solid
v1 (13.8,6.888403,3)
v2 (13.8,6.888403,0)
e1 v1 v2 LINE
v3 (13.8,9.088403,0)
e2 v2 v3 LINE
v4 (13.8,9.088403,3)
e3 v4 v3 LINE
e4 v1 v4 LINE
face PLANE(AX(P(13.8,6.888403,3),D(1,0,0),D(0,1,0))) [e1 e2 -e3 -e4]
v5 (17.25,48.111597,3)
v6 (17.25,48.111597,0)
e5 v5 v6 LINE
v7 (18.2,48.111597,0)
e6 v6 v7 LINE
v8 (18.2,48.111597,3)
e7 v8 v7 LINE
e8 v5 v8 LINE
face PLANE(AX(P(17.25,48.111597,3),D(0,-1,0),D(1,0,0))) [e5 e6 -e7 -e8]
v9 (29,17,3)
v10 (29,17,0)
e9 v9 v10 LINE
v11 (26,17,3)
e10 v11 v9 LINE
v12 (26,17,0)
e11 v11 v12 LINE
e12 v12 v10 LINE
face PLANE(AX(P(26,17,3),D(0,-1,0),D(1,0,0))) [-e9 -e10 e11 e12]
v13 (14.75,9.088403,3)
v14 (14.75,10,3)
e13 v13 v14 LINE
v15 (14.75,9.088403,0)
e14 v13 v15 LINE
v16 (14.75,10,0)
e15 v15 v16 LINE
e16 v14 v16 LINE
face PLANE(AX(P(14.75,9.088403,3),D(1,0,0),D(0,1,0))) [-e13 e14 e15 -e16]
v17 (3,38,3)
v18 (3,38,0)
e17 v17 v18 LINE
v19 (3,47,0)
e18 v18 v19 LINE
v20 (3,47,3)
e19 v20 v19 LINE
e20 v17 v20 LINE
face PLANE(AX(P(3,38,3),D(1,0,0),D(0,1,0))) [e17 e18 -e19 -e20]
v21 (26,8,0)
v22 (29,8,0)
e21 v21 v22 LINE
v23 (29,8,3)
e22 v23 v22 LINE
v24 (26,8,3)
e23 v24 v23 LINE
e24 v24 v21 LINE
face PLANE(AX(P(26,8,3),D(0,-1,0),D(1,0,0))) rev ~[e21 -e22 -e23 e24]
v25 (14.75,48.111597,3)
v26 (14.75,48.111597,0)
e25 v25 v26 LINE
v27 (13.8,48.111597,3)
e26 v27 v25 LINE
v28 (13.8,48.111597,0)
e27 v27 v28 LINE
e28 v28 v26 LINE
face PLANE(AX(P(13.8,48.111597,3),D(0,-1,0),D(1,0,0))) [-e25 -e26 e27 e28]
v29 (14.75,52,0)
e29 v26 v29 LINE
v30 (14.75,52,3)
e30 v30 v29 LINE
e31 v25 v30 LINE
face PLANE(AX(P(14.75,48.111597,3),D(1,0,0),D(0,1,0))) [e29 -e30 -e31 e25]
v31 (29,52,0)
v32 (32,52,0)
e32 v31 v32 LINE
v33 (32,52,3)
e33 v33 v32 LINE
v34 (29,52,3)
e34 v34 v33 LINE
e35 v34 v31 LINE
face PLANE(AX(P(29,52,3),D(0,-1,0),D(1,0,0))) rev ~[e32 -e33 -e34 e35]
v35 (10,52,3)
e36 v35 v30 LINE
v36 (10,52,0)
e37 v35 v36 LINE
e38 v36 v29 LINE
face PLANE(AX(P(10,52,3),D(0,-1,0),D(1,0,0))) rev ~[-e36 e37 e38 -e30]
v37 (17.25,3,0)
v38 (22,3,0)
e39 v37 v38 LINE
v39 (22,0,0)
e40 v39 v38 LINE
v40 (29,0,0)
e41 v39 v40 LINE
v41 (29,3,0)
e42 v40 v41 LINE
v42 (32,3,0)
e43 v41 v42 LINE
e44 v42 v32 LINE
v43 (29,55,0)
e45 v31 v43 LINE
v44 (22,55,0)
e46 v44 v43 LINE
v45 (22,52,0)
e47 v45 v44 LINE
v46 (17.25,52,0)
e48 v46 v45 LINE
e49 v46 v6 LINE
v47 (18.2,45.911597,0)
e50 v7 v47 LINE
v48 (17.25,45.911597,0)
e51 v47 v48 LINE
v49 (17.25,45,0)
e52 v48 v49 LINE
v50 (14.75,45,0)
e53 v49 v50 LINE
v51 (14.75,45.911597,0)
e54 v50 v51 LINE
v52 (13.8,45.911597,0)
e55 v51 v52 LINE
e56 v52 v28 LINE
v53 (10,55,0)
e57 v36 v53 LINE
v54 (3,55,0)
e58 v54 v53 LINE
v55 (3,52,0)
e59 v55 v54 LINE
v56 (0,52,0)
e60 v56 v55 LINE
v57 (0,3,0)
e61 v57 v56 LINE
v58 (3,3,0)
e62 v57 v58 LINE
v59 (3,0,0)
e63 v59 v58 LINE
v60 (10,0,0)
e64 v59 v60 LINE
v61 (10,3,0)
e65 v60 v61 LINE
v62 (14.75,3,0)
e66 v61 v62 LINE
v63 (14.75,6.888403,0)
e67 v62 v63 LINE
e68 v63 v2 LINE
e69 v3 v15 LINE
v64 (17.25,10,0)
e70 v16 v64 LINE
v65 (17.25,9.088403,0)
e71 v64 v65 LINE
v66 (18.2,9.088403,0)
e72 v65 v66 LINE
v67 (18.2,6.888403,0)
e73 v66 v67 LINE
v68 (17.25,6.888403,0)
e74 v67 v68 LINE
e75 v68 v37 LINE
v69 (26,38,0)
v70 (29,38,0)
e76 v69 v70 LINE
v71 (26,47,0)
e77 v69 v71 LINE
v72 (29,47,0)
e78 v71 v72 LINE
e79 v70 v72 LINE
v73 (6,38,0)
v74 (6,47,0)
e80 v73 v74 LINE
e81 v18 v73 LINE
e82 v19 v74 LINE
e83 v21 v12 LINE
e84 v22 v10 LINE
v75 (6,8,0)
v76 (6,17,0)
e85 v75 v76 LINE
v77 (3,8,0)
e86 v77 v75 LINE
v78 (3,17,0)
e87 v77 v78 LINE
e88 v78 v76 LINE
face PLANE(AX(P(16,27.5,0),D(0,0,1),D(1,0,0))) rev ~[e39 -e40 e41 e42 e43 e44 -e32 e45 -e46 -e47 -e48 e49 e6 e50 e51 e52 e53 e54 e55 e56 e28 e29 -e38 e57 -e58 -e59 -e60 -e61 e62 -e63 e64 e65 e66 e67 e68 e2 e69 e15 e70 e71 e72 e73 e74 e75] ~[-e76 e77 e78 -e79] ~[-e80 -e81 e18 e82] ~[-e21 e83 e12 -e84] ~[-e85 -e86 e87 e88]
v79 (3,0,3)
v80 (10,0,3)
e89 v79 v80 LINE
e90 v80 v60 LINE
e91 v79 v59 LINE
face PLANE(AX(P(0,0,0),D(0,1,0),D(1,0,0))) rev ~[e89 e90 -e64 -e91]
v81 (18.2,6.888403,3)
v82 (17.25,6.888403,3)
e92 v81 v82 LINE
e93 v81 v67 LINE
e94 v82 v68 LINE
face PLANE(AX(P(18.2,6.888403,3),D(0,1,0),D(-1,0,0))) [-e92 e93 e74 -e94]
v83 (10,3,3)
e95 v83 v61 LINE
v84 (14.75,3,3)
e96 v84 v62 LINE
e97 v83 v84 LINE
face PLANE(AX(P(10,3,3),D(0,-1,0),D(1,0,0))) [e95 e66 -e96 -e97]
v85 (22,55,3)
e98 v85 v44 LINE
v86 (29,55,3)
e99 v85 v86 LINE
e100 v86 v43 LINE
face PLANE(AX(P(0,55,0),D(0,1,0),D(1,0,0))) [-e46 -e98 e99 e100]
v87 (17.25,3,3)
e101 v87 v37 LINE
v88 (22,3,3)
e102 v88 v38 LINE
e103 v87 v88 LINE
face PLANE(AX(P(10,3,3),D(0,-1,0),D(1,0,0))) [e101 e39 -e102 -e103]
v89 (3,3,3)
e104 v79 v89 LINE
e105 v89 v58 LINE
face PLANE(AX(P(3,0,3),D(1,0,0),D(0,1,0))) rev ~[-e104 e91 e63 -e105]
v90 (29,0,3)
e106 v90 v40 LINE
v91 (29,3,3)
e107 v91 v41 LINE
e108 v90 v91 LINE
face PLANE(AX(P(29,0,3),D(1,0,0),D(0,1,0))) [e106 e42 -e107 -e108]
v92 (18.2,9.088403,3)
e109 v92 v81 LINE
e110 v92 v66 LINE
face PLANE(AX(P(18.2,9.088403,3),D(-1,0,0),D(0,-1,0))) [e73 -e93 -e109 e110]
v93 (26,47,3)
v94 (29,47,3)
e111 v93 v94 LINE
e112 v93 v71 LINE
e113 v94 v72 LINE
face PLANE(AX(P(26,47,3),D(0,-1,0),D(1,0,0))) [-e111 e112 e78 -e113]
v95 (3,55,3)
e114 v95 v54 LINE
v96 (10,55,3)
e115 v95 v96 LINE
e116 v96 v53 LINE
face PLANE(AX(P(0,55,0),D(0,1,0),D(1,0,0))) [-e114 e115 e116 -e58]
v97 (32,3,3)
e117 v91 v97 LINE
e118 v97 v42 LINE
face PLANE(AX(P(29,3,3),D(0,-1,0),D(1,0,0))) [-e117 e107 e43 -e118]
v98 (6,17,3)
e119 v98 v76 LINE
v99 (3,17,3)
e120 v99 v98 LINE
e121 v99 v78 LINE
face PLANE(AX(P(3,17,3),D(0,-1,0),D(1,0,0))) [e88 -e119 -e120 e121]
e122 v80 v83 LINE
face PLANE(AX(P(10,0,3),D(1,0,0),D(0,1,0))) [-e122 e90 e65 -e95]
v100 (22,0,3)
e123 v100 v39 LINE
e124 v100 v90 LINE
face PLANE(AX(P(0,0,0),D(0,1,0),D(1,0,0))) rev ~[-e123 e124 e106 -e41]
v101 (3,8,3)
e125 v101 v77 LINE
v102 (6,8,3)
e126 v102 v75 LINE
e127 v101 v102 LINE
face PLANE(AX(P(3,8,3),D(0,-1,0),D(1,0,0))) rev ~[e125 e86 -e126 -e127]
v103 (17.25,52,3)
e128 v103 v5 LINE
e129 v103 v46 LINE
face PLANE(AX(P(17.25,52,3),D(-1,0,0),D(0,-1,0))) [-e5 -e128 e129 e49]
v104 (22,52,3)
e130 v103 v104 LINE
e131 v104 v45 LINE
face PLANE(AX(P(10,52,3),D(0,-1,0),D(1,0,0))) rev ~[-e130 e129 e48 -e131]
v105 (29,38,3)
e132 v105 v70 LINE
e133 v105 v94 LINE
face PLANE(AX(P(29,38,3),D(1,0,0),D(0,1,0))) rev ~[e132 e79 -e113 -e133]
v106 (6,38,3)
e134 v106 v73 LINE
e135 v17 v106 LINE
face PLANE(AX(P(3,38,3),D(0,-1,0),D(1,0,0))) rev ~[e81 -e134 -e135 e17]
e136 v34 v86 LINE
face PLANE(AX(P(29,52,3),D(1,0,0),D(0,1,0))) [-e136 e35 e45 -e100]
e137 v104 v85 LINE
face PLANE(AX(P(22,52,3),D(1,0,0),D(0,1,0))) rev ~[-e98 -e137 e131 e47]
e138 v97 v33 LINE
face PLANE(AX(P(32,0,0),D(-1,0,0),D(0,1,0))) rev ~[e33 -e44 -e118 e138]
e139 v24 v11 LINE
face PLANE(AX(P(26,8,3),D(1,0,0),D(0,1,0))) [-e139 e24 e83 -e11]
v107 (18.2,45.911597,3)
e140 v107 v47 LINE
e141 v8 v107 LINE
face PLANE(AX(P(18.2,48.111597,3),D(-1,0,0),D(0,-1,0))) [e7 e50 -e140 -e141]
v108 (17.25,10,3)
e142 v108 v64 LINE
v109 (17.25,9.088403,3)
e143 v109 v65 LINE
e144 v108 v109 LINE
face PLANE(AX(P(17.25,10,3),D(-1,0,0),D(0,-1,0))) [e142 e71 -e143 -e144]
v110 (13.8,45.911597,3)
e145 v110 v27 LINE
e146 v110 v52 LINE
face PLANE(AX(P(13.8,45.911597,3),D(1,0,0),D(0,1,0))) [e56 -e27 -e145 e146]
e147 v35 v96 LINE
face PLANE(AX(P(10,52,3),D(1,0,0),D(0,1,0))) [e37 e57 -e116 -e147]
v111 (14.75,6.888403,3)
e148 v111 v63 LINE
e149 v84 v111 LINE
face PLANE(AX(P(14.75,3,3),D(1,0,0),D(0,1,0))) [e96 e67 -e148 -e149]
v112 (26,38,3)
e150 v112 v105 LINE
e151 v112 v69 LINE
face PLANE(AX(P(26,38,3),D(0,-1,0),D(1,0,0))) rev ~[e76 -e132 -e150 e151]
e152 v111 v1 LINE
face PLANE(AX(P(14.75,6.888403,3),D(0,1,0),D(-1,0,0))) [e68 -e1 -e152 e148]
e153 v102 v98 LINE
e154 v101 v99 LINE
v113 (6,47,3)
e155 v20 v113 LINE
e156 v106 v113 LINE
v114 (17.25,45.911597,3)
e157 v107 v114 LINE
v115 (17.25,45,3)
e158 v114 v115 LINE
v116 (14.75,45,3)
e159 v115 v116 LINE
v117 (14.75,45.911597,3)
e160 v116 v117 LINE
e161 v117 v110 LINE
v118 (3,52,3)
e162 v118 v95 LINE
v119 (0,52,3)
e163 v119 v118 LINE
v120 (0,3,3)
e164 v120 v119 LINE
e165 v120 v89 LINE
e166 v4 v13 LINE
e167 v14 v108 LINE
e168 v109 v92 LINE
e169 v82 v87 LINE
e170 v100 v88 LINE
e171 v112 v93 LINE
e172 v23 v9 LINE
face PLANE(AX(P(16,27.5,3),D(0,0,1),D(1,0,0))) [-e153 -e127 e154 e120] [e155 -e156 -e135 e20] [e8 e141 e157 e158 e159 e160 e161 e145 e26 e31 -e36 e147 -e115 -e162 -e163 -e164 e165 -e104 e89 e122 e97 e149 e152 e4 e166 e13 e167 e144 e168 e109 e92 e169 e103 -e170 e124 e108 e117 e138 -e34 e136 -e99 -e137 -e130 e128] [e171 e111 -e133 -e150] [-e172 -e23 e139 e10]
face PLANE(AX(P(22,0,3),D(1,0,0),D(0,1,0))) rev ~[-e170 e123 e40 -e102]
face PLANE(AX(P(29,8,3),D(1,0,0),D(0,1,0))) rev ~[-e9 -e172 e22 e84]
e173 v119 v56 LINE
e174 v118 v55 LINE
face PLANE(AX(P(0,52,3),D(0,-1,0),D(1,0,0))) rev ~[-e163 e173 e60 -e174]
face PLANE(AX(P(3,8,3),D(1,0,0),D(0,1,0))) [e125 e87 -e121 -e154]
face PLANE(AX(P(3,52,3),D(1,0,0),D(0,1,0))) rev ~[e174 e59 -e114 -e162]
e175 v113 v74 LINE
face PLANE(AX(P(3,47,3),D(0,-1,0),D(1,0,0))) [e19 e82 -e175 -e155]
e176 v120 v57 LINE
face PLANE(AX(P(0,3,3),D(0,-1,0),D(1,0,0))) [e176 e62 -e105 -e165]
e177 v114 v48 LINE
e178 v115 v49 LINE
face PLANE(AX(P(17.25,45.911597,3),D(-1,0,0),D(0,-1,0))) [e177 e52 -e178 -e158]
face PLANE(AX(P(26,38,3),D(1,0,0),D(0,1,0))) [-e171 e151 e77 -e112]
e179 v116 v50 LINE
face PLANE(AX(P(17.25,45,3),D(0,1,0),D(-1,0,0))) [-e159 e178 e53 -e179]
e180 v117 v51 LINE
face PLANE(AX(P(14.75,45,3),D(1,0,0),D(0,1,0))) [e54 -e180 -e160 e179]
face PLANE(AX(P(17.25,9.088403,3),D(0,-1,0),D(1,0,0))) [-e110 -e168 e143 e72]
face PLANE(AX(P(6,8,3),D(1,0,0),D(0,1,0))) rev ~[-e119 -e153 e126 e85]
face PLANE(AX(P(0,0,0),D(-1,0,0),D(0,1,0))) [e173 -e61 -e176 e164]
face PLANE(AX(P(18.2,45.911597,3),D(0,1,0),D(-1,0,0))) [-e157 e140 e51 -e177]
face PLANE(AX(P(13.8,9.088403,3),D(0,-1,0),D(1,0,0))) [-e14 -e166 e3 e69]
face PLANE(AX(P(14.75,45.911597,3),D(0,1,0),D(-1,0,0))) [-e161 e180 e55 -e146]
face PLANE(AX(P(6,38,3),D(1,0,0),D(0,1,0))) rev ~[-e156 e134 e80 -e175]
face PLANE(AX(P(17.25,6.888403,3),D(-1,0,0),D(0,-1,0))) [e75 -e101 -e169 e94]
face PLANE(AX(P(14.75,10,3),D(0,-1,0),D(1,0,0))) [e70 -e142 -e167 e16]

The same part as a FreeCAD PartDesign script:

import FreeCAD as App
import Part
import Sketcher
from FreeCAD import Vector


def add_polygon(sketch, points):
    """Adds a closed chain of lines whose ends are joined by coincident constraints."""
    first, n = sketch.GeometryCount, len(points)
    for a, b in zip(points, points[1:] + points[:1]):
        sketch.addGeometry(Part.LineSegment(App.Vector(*a, 0), App.Vector(*b, 0)), False)
    for i in range(n):
        sketch.addConstraint(Sketcher.Constraint("Coincident", first + i, 2, first + (i + 1) % n, 1))

doc = App.newDocument("Part")
params = doc.addObject("Spreadsheet::Sheet", "Params")
for row, (alias, value) in enumerate([
    ("sketch1_width", "32 mm"),
    ("sketch1_height", "55 mm"),
    ("pad1_length", "3 mm"),
    ("sketch2_width", "3 mm"),
    ("sketch2_width2", "12 mm"),
    ("sketch3_width", "3 mm"),
    ("sketch3_height", "9 mm"),
    ("sketch4_width", "2.5 mm"),
    ("sketch4_height", "2.2 mm"),
    ("sketch4_width2", "0.95 mm"),
    ("pocket3_length", "10 mm"),
], start=1):
    params.set(f"A{row}", alias)
    params.set(f"B{row}", "=" + value)
    params.setAlias(f"B{row}", alias)

body = doc.addObject("PartDesign::Body", "Body")

sketch1 = doc.addObject("Sketcher::SketchObject", "Sketch")
body.addObject(sketch1)
sketch1.AttachmentSupport = (doc.XY_Plane, [""])
sketch1.MapMode = "FlatFace"
add_polygon(sketch1, [(0, 55), (0, 0), (32, 0), (32, 55)])
sketch1.addConstraint([
    Sketcher.Constraint("Vertical", 0),
    Sketcher.Constraint("Horizontal", 1),
    Sketcher.Constraint("Vertical", 2),
    Sketcher.Constraint("Horizontal", 3),
    Sketcher.Constraint("Coincident", 0, 2, -1, 1),
    Sketcher.Constraint("DistanceX", 1, 1, 1, 2, 32.0),
    Sketcher.Constraint("DistanceY", 0, 2, 0, 1, 55.0),
])
sketch1.setExpression("Constraints[9]", "Params.sketch1_width")
sketch1.setExpression("Constraints[10]", "Params.sketch1_height")
pad1 = doc.addObject("PartDesign::Pad", "Pad")
body.addObject(pad1)
pad1.Profile = sketch1
pad1.setExpression("Length", "Params.pad1_length")

sketch2 = doc.addObject("Sketcher::SketchObject", "Sketch001")
body.addObject(sketch2)
sketch2.AttachmentSupport = (doc.XY_Plane, [""])
sketch2.MapMode = "FlatFace"
sketch2.AttachmentOffset = App.Placement(Vector(0, 0, 3), App.Rotation())
add_polygon(sketch2, [(0, 55), (0, 52), (3, 52), (3, 55)])
add_polygon(sketch2, [(10, 55), (10, 52), (22, 52), (22, 55)])
add_polygon(sketch2, [(29, 55), (29, 52), (32, 52), (32, 55)])
add_polygon(sketch2, [(0, 3), (0, 0), (3, 0), (3, 3)])
add_polygon(sketch2, [(10, 3), (10, 0), (22, 0), (22, 3)])
add_polygon(sketch2, [(29, 3), (29, 0), (32, 0), (32, 3)])
sketch2.addConstraint([
    Sketcher.Constraint("Vertical", 0),
    Sketcher.Constraint("Horizontal", 1),
    Sketcher.Constraint("Vertical", 2),
    Sketcher.Constraint("Horizontal", 3),
    Sketcher.Constraint("Vertical", 4),
    Sketcher.Constraint("Horizontal", 5),
    Sketcher.Constraint("Vertical", 6),
    Sketcher.Constraint("Horizontal", 7),
    Sketcher.Constraint("Vertical", 8),
    Sketcher.Constraint("Horizontal", 9),
    Sketcher.Constraint("Vertical", 10),
    Sketcher.Constraint("Horizontal", 11),
    Sketcher.Constraint("Vertical", 12),
    Sketcher.Constraint("Horizontal", 13),
    Sketcher.Constraint("Vertical", 14),
    Sketcher.Constraint("Horizontal", 15),
    Sketcher.Constraint("Vertical", 16),
    Sketcher.Constraint("Horizontal", 17),
    Sketcher.Constraint("Vertical", 18),
    Sketcher.Constraint("Horizontal", 19),
    Sketcher.Constraint("Vertical", 20),
    Sketcher.Constraint("Horizontal", 21),
    Sketcher.Constraint("Vertical", 22),
    Sketcher.Constraint("Horizontal", 23),
    Sketcher.Constraint("Coincident", 12, 2, -1, 1),
    Sketcher.Constraint("PointOnObject", 0, 2, -2),
    Sketcher.Constraint("PointOnObject", 16, 2, -1),
    Sketcher.Constraint("PointOnObject", 20, 2, -1),
    Sketcher.Constraint("Horizontal", 1, 2, 4, 2),
    Sketcher.Constraint("Horizontal", 3, 2, 6, 2),
    Sketcher.Constraint("Horizontal", 5, 2, 8, 2),
    Sketcher.Constraint("Horizontal", 7, 2, 10, 2),
    Sketcher.Constraint("Horizontal", 15, 2, 18, 2),
    Sketcher.Constraint("Horizontal", 19, 2, 22, 2),
    Sketcher.Constraint("Vertical", 2, 2, 13, 2),
    Sketcher.Constraint("Vertical", 7, 2, 16, 2),
    Sketcher.Constraint("Vertical", 6, 2, 17, 2),
    Sketcher.Constraint("Vertical", 11, 2, 20, 2),
    Sketcher.Constraint("Vertical", 10, 2, 21, 2),
    Sketcher.Constraint("Equal", 3, 9),
    Sketcher.Constraint("Equal", 23, 0),
    Sketcher.Constraint("Equal", 10, 12),
    Sketcher.Constraint("DistanceX", 1, 1, 1, 2, 3.0),
    Sketcher.Constraint("DistanceX", 5, 1, 5, 2, 12.0),
    Sketcher.Constraint("DistanceY", -1, 1, 0, 2, 52.0),
    Sketcher.Constraint("DistanceX", -1, 1, 4, 2, 10.0),
    Sketcher.Constraint("DistanceX", -1, 1, 8, 2, 29.0),
])
sketch2.setExpression("Constraints[66]", "Params.sketch2_width")
sketch2.setExpression("Constraints[67]", "Params.sketch2_width2")
pocket1 = doc.addObject("PartDesign::Pocket", "Pocket")
body.addObject(pocket1)
pocket1.Profile = sketch2
pocket1.Type = "ThroughAll"

sketch3 = doc.addObject("Sketcher::SketchObject", "Sketch002")
body.addObject(sketch3)
sketch3.AttachmentSupport = (doc.XY_Plane, [""])
sketch3.MapMode = "FlatFace"
sketch3.AttachmentOffset = App.Placement(Vector(0, 0, 3), App.Rotation())
add_polygon(sketch3, [(3, 47), (3, 38), (6, 38), (6, 47)])
add_polygon(sketch3, [(26, 47), (26, 38), (29, 38), (29, 47)])
add_polygon(sketch3, [(26, 17), (26, 8), (29, 8), (29, 17)])
add_polygon(sketch3, [(3, 17), (3, 8), (6, 8), (6, 17)])
sketch3.addConstraint([
    Sketcher.Constraint("Vertical", 0),
    Sketcher.Constraint("Horizontal", 1),
    Sketcher.Constraint("Vertical", 2),
    Sketcher.Constraint("Horizontal", 3),
    Sketcher.Constraint("Vertical", 4),
    Sketcher.Constraint("Horizontal", 5),
    Sketcher.Constraint("Vertical", 6),
    Sketcher.Constraint("Horizontal", 7),
    Sketcher.Constraint("Vertical", 8),
    Sketcher.Constraint("Horizontal", 9),
    Sketcher.Constraint("Vertical", 10),
    Sketcher.Constraint("Horizontal", 11),
    Sketcher.Constraint("Vertical", 12),
    Sketcher.Constraint("Horizontal", 13),
    Sketcher.Constraint("Vertical", 14),
    Sketcher.Constraint("Horizontal", 15),
    Sketcher.Constraint("Horizontal", 1, 2, 4, 2),
    Sketcher.Constraint("Horizontal", 3, 2, 6, 2),
    Sketcher.Constraint("Horizontal", 9, 2, 12, 2),
    Sketcher.Constraint("Horizontal", 11, 2, 14, 2),
    Sketcher.Constraint("Vertical", 7, 2, 8, 2),
    Sketcher.Constraint("Vertical", 6, 2, 9, 2),
    Sketcher.Constraint("Vertical", 3, 2, 12, 2),
    Sketcher.Constraint("Vertical", 2, 2, 13, 2),
    Sketcher.Constraint("Equal", 3, 5),
    Sketcher.Constraint("Equal", 6, 8),
    Sketcher.Constraint("DistanceX", 1, 1, 1, 2, 3.0),
    Sketcher.Constraint("DistanceY", 0, 2, 0, 1, 9.0),
    Sketcher.Constraint("DistanceX", -1, 1, 0, 2, 3.0),
    Sketcher.Constraint("DistanceY", -1, 1, 0, 2, 38.0),
    Sketcher.Constraint("DistanceX", -1, 1, 4, 2, 26.0),
    Sketcher.Constraint("DistanceY", -1, 1, 8, 2, 8.0),
])
sketch3.setExpression("Constraints[42]", "Params.sketch3_width")
sketch3.setExpression("Constraints[43]", "Params.sketch3_height")
pocket2 = doc.addObject("PartDesign::Pocket", "Pocket001")
body.addObject(pocket2)
pocket2.Profile = sketch3
pocket2.Type = "ThroughAll"

sketch4 = doc.addObject("Sketcher::SketchObject", "Sketch003")
body.addObject(sketch4)
sketch4.AttachmentSupport = (doc.XY_Plane, [""])
sketch4.MapMode = "FlatFace"
sketch4.AttachmentOffset = App.Placement(Vector(0, 0, 3), App.Rotation())
add_polygon(sketch4, [(17.2, 10), (14.8, 10), (14.8, 9.1), (13.8, 9.1), (13.8, 6.9), (14.8, 6.9), (14.8, 3), (17.2, 3), (17.2, 6.9), (18.2, 6.9), (18.2, 9.1), (17.2, 9.1)])
add_polygon(sketch4, [(14.8, 45.9), (14.8, 45), (17.2, 45), (17.2, 45.9), (18.2, 45.9), (18.2, 48.1), (17.2, 48.1), (17.2, 52), (14.8, 52), (14.8, 48.1), (13.8, 48.1), (13.8, 45.9)])
sketch4.addConstraint([
    Sketcher.Constraint("Horizontal", 0),
    Sketcher.Constraint("Vertical", 1),
    Sketcher.Constraint("Horizontal", 2),
    Sketcher.Constraint("Vertical", 3),
    Sketcher.Constraint("Horizontal", 4),
    Sketcher.Constraint("Vertical", 5),
    Sketcher.Constraint("Horizontal", 6),
    Sketcher.Constraint("Vertical", 7),
    Sketcher.Constraint("Horizontal", 8),
    Sketcher.Constraint("Vertical", 9),
    Sketcher.Constraint("Horizontal", 10),
    Sketcher.Constraint("Vertical", 11),
    Sketcher.Constraint("Vertical", 12),
    Sketcher.Constraint("Horizontal", 13),
    Sketcher.Constraint("Vertical", 14),
    Sketcher.Constraint("Horizontal", 15),
    Sketcher.Constraint("Vertical", 16),
    Sketcher.Constraint("Horizontal", 17),
    Sketcher.Constraint("Vertical", 18),
    Sketcher.Constraint("Horizontal", 19),
    Sketcher.Constraint("Vertical", 20),
    Sketcher.Constraint("Horizontal", 21),
    Sketcher.Constraint("Vertical", 22),
    Sketcher.Constraint("Horizontal", 23),
    Sketcher.Constraint("Horizontal", 4, 2, 7, 2),
    Sketcher.Constraint("Horizontal", 2, 2, 9, 2),
    Sketcher.Constraint("Horizontal", 17, 2, 20, 2),
    Sketcher.Constraint("Horizontal", 15, 2, 22, 2),
    Sketcher.Constraint("Vertical", 1, 2, 4, 2),
    Sketcher.Constraint("Vertical", 7, 2, 10, 2),
    Sketcher.Constraint("Vertical", 5, 2, 12, 2),
    Sketcher.Constraint("Vertical", 11, 2, 13, 2),
    Sketcher.Constraint("Vertical", 9, 2, 15, 2),
    Sketcher.Constraint("Vertical", 14, 2, 17, 2),
    Sketcher.Constraint("Vertical", 12, 2, 19, 2),
    Sketcher.Constraint("Vertical", 3, 2, 21, 2),
    Sketcher.Constraint("Equal", 4, 8),
    Sketcher.Constraint("Equal", 11, 12),
    Sketcher.Constraint("Equal", 9, 16),
    Sketcher.Constraint("Equal", 7, 18),
    Sketcher.Constraint("DistanceX", 0, 2, 0, 1, 2.5),
    Sketcher.Constraint("DistanceY", 3, 2, 3, 1, 2.2),
    Sketcher.Constraint("DistanceY", -1, 1, 0, 2, 10.0),
    Sketcher.Constraint("DistanceY", -1, 1, 5, 2, 3.0),
    Sketcher.Constraint("DistanceY", -1, 1, 12, 2, 45.0),
    Sketcher.Constraint("DistanceX", 2, 2, 2, 1, 0.95),
    Sketcher.Constraint("DistanceX", -1, 1, 2, 2, 13.8),
    Sketcher.Constraint("DistanceY", 1, 2, 1, 1, 0.911597),
])
sketch4.setExpression("Constraints[64]", "Params.sketch4_width")
sketch4.setExpression("Constraints[65]", "Params.sketch4_height")
sketch4.setExpression("Constraints[69]", "Params.sketch4_width2")
pocket3 = doc.addObject("PartDesign::Pocket", "Pocket002")
body.addObject(pocket3)
pocket3.Profile = sketch4
pocket3.setExpression("Length", "Params.pocket3_length")

doc.recompute()
